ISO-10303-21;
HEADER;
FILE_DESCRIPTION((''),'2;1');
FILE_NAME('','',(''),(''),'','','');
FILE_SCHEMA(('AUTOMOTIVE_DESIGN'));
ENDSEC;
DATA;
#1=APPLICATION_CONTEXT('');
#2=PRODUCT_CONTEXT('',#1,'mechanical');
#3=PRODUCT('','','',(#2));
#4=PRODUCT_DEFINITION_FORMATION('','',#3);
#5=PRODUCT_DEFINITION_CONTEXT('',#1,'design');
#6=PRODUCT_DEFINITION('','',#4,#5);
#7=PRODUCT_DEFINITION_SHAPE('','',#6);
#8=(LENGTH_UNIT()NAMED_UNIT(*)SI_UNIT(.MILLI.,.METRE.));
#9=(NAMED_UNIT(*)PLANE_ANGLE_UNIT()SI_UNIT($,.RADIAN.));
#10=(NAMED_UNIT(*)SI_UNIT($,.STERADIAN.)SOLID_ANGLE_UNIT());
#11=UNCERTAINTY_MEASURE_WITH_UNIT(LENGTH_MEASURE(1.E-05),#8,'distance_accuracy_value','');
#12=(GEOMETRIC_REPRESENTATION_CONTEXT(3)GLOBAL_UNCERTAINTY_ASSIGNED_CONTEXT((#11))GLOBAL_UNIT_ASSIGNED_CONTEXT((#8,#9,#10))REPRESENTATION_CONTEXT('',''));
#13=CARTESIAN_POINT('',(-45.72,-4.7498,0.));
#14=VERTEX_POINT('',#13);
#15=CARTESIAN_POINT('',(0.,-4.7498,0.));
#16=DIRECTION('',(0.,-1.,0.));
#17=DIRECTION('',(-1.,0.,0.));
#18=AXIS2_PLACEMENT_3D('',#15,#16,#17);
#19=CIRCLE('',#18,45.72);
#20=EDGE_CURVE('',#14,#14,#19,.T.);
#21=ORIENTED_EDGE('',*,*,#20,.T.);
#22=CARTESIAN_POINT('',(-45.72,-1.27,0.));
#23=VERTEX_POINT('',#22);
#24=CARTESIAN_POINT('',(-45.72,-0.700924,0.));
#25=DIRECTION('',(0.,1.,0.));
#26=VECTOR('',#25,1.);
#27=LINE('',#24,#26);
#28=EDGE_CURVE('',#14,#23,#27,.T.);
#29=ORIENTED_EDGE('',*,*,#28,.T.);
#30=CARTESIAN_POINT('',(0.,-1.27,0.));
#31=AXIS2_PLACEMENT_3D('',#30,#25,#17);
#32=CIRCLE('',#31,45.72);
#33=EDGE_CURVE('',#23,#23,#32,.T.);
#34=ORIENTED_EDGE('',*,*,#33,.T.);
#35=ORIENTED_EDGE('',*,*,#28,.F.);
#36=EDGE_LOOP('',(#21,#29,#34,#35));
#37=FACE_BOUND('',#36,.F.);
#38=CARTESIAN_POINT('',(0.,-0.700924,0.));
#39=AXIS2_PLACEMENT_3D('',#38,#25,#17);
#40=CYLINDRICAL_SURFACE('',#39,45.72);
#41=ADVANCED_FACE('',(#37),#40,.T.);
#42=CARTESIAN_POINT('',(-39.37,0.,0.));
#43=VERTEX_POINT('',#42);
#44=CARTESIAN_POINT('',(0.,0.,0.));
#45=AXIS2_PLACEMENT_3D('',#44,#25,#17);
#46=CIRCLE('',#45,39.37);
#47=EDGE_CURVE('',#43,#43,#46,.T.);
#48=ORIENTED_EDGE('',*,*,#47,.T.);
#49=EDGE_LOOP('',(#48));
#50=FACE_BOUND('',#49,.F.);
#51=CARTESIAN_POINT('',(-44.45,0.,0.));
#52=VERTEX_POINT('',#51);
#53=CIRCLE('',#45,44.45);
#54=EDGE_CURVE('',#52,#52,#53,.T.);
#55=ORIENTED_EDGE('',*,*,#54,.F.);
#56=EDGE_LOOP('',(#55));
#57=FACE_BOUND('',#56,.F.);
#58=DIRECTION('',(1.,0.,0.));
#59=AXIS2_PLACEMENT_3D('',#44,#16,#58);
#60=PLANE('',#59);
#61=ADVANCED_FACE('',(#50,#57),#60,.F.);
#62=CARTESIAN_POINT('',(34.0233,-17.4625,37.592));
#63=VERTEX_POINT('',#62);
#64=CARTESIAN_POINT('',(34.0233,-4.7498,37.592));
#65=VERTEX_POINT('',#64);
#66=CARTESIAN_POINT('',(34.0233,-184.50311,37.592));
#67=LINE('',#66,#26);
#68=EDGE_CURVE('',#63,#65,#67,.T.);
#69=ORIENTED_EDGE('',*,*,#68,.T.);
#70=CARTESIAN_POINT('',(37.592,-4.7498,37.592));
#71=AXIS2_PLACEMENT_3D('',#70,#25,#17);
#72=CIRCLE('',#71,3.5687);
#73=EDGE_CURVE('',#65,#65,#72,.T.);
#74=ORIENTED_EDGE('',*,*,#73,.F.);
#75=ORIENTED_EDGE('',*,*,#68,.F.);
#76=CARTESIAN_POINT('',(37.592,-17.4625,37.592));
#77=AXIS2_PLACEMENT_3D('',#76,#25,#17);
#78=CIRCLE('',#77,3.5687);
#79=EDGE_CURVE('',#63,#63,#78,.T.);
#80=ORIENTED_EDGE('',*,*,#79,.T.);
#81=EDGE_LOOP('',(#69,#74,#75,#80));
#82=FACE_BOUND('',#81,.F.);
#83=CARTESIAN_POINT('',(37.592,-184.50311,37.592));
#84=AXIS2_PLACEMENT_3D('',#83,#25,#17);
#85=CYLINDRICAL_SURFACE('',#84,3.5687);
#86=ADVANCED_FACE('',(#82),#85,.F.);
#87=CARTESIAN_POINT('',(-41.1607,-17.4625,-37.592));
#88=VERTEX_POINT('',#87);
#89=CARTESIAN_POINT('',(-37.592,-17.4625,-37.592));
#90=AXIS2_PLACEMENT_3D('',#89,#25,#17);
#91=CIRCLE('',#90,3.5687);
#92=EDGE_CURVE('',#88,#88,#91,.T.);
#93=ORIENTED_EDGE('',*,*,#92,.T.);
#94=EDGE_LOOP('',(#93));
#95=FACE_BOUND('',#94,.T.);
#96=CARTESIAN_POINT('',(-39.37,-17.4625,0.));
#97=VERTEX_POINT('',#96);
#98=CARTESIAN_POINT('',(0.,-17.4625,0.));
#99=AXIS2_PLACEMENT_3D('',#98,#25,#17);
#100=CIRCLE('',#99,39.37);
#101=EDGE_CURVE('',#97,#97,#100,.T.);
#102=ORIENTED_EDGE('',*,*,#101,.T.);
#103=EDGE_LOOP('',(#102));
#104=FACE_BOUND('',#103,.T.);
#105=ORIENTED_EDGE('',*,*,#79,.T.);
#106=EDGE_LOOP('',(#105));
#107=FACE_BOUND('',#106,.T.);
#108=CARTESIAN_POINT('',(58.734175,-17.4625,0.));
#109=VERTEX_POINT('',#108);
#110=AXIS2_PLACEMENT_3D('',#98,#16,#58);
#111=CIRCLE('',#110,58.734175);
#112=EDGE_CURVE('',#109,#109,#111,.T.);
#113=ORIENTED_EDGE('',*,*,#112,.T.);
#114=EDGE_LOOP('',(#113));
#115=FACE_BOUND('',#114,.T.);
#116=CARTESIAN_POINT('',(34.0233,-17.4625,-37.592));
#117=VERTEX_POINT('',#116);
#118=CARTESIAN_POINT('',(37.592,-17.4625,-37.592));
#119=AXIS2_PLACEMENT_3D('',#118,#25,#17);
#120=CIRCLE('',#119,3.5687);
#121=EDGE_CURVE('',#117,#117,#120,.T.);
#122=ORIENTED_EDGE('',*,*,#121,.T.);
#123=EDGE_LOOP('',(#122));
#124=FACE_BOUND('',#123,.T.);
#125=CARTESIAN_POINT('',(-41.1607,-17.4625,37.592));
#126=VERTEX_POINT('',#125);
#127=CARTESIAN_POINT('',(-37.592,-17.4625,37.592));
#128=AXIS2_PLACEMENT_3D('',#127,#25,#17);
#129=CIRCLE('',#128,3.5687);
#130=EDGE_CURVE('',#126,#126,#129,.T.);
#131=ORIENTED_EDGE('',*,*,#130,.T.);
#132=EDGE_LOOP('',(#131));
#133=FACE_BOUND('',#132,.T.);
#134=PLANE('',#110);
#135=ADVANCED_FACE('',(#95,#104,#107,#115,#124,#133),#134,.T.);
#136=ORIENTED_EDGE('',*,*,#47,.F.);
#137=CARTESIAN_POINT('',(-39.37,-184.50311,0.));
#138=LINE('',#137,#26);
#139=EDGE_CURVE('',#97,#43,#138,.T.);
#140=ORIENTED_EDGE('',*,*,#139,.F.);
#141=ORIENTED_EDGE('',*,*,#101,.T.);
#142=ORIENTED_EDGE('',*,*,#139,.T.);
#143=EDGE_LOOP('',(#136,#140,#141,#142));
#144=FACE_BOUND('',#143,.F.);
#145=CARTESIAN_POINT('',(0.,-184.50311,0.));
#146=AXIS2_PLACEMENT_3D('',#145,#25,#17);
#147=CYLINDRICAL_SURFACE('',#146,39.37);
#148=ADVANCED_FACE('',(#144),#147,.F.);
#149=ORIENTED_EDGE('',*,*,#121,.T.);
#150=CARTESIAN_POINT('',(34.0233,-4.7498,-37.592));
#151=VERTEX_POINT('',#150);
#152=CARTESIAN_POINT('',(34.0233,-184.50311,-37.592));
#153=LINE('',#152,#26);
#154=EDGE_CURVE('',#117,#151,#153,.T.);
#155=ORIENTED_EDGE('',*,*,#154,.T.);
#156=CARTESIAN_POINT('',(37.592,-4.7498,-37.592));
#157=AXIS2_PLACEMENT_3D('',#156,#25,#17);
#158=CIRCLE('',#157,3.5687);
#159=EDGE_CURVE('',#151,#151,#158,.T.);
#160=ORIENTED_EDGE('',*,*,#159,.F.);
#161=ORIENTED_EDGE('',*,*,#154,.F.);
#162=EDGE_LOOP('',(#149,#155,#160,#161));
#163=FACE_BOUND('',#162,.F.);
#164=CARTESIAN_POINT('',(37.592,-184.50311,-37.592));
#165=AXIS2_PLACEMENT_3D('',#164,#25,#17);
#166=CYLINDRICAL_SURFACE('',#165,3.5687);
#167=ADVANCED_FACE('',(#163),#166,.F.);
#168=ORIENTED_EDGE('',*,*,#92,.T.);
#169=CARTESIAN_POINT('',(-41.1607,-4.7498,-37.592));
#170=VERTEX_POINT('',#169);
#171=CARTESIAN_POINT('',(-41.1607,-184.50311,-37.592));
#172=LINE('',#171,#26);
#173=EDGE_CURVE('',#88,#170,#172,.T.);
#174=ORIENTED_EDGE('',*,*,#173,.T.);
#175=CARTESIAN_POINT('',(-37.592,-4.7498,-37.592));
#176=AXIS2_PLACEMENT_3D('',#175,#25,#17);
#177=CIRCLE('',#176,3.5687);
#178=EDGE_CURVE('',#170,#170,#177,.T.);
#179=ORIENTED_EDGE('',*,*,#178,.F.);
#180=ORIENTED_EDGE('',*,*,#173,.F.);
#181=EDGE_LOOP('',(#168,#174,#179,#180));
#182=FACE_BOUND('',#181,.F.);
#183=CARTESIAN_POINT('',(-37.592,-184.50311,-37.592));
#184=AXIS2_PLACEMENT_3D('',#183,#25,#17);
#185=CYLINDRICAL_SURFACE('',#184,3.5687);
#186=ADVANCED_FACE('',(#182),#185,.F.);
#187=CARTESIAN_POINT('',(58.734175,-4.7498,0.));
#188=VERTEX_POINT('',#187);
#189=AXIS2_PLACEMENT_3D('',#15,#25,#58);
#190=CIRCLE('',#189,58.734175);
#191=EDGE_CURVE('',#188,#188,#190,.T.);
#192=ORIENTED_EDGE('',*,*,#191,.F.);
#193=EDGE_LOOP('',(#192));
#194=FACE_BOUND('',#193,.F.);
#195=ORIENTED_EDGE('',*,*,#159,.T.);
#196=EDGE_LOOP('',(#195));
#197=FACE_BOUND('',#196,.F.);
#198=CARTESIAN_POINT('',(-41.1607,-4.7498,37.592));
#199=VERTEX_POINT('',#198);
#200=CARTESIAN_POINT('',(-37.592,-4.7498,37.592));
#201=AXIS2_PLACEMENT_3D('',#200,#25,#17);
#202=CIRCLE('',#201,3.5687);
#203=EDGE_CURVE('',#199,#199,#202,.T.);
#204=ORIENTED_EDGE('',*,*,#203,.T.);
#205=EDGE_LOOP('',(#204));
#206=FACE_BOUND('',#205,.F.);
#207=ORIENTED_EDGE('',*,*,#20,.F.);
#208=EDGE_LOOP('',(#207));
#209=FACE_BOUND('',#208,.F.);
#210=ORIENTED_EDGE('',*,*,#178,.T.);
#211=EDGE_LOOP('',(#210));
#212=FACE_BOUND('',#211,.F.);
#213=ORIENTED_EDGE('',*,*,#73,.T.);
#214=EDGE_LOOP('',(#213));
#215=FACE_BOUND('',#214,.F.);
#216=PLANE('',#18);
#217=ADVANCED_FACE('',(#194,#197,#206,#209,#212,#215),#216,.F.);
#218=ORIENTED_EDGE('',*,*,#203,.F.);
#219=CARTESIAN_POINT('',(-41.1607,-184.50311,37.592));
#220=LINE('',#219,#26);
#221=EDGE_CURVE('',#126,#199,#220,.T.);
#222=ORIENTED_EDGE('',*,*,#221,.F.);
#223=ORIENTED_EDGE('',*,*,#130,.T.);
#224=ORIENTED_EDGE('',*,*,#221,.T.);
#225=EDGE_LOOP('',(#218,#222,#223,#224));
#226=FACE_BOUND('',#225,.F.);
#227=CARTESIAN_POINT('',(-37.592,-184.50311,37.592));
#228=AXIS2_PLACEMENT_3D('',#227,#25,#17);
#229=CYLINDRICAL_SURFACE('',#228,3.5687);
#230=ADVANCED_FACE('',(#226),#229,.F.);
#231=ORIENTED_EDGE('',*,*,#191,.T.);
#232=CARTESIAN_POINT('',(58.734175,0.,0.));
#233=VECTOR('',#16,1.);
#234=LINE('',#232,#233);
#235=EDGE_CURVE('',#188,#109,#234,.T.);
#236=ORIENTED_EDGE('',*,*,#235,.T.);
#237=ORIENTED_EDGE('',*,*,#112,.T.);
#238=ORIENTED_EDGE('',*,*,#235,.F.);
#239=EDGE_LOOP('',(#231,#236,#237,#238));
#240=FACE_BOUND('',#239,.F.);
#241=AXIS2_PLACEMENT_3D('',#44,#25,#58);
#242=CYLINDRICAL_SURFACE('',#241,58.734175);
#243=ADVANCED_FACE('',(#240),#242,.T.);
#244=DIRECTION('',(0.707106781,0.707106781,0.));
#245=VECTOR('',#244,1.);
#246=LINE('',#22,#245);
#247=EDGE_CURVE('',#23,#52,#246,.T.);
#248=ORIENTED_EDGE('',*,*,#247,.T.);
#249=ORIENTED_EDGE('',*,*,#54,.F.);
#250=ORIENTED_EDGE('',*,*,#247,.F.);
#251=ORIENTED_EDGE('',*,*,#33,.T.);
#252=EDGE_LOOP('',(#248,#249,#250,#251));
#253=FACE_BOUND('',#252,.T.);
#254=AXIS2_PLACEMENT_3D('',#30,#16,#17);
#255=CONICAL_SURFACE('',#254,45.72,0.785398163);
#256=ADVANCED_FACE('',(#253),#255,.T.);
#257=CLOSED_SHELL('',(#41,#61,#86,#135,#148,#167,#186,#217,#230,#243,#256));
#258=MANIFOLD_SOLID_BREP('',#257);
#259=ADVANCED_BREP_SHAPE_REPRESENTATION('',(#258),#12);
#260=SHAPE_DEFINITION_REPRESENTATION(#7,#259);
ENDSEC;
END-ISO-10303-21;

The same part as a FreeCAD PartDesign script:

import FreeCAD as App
import Part
import Sketcher
Q = App.Units.Quantity


def edges_at(feature, points):
    """Names of the edges that pass closest to the given points."""
    edges = feature.Shape.Edges
    near = lambda p: min(range(len(edges)), key=lambda i: edges[i].distToShape(Part.Vertex(*p))[0])
    return sorted({f"Edge{near(p) + 1}" for p in points})

doc = App.newDocument("Part")
body = doc.addObject("PartDesign::Body", "Body")

sketch1 = body.newObject("Sketcher::SketchObject", "Sketch")
sketch1.AttachmentSupport = (doc.getObject("XZ_Plane"), [""])
sketch1.MapMode = "FlatFace"
sketch1.addGeometry(Part.Circle(App.Vector(0, 0, 0), App.Vector(0, 0, 1), 59), False)
sketch1.addConstraint(Sketcher.Constraint("Coincident", 0, 3, -1, 1))
sketch1.addConstraint(Sketcher.Constraint("Diameter", 0, Q("117.46835 mm")))
pad1 = body.newObject("PartDesign::Pad", "Pad")
pad1.Profile = sketch1
pad1.Length = Q("0.6875 in")

sketch2 = body.newObject("Sketcher::SketchObject", "Sketch001")
sketch2.AttachmentSupport = (doc.getObject("XY_Plane"), [""])
sketch2.MapMode = "FlatFace"
sketch2.addGeometry(Part.LineSegment(App.Vector(-63, 3, 0), App.Vector(-63, -5, 0)), False)
sketch2.addGeometry(Part.LineSegment(App.Vector(-63, -5, 0), App.Vector(-46, -5, 0)), False)
sketch2.addGeometry(Part.LineSegment(App.Vector(-46, -5, 0), App.Vector(-46, 3, 0)), False)
sketch2.addGeometry(Part.LineSegment(App.Vector(-46, 3, 0), App.Vector(-63, 3, 0)), False)
sketch2.addConstraint(Sketcher.Constraint("Coincident", 0, 2, 1, 1))
sketch2.addConstraint(Sketcher.Constraint("Coincident", 1, 2, 2, 1))
sketch2.addConstraint(Sketcher.Constraint("Coincident", 2, 2, 3, 1))
sketch2.addConstraint(Sketcher.Constraint("Coincident", 3, 2, 0, 1))
sketch2.addConstraint(Sketcher.Constraint("Vertical", 0))
sketch2.addConstraint(Sketcher.Constraint("Horizontal", 1))
sketch2.addConstraint(Sketcher.Constraint("Vertical", 2))
sketch2.addConstraint(Sketcher.Constraint("Horizontal", 3))
sketch2.addConstraint(Sketcher.Constraint("DistanceX", 1, 2, -1, 1, Q("1.8 in")))
sketch2.addConstraint(Sketcher.Constraint("DistanceY", 0, 2, -1, 1, Q("0.187 in")))
sketch2.addConstraint(Sketcher.Constraint("DistanceX", 1, 1, 1, 2, Q("17.631101 mm")))
sketch2.addConstraint(Sketcher.Constraint("DistanceY", 0, 2, 0, 1, Q("8.097753 mm")))
groove = body.newObject("PartDesign::Groove", "Groove")
groove.Profile = sketch2
groove.ReferenceAxis = (sketch2, ["V_Axis"])
groove.Angle = 360
doc.recompute()

chamfer = body.newObject("PartDesign::Chamfer", "Chamfer")
chamfer.Base = (groove, edges_at(groove, [(45.72, 0, 0)]))
chamfer.Size = Q("0.05 in")

sketch3 = body.newObject("Sketcher::SketchObject", "Sketch002")
sketch3.AttachmentSupport = (doc.getObject("XZ_Plane"), [""])
sketch3.MapMode = "FlatFace"
sketch3.AttachmentOffset = App.Placement(App.Vector(0, 0, 0.6875 * 25.4), App.Rotation())
sketch3.addGeometry(Part.Circle(App.Vector(-37.6, 37.6, 0), App.Vector(0, 0, 1), 3.6), False)
sketch3.addGeometry(Part.Circle(App.Vector(37.6, 37.6, 0), App.Vector(0, 0, 1), 3.6), False)
sketch3.addGeometry(Part.Circle(App.Vector(37.6, -37.6, 0), App.Vector(0, 0, 1), 3.6), False)
sketch3.addGeometry(Part.Circle(App.Vector(-37.6, -37.6, 0), App.Vector(0, 0, 1), 3.6), False)
sketch3.addConstraint(Sketcher.Constraint("Equal", 0, 1))
sketch3.addConstraint(Sketcher.Constraint("Equal", 1, 2))
sketch3.addConstraint(Sketcher.Constraint("Equal", 2, 3))
sketch3.addConstraint(Sketcher.Constraint("Symmetric", 0, 3, 2, 3, -1, 1))
sketch3.addConstraint(Sketcher.Constraint("Symmetric", 1, 3, 3, 3, -1, 1))
sketch3.addConstraint(Sketcher.Constraint("Symmetric", 0, 3, 1, 3, -2))
sketch3.addConstraint(Sketcher.Constraint("Diameter", 0, Q("0.281 in")))
sketch3.addConstraint(Sketcher.Constraint("DistanceX", 0, 3, -1, 1, Q("1.48 in")))
sketch3.addConstraint(Sketcher.Constraint("DistanceY", -1, 1, 0, 3, Q("1.48 in")))
doc.recompute()
hole = body.newObject("PartDesign::Hole", "Hole")
hole.Profile = sketch3
hole.ThreadType = "None"
hole.Diameter = Q("0.281 in")
hole.DepthType = "ThroughAll"

sketch4 = body.newObject("Sketcher::SketchObject", "Sketch003")
sketch4.AttachmentSupport = (doc.getObject("XZ_Plane"), [""])
sketch4.MapMode = "FlatFace"
sketch4.AttachmentOffset = App.Placement(App.Vector(0, 0, 0.6875 * 25.4), App.Rotation())
sketch4.addGeometry(Part.Circle(App.Vector(0, 0, 0), App.Vector(0, 0, 1), 39), False)
sketch4.addConstraint(Sketcher.Constraint("Coincident", 0, 3, -1, 1))
sketch4.addConstraint(Sketcher.Constraint("Diameter", 0, Q("3.1 in")))
doc.recompute()
hole2 = body.newObject("PartDesign::Hole", "Hole001")
hole2.Profile = sketch4
hole2.ThreadType = "None"
hole2.Diameter = Q("3.1 in")
hole2.DepthType = "ThroughAll"

doc.recompute()
